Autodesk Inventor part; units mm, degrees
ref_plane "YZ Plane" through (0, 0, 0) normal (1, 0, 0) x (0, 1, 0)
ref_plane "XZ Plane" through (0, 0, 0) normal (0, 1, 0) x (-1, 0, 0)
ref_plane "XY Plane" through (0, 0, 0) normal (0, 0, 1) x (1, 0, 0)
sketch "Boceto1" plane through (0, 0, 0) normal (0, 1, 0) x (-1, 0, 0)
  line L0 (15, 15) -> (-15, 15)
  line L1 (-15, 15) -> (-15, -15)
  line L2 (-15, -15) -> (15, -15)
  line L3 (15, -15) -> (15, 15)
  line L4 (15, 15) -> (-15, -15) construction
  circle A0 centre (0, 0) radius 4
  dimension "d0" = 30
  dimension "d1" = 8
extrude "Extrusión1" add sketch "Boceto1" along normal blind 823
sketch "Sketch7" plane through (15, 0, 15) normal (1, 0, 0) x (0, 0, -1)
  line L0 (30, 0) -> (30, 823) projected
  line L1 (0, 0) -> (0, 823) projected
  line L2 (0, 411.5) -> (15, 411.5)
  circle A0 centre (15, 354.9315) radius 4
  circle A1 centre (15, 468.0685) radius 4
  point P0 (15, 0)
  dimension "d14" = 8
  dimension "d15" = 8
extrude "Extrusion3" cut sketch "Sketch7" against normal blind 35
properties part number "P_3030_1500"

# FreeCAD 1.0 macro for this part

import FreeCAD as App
import Part
import Sketcher
Q = App.Units.Quantity


def add_polygon(sketch, points):
    """Adds a closed chain of lines whose ends are joined by coincident constraints."""
    first, n = sketch.GeometryCount, len(points)
    for a, b in zip(points, points[1:] + points[:1]):
        sketch.addGeometry(Part.LineSegment(App.Vector(*a, 0), App.Vector(*b, 0)), False)
    for i in range(n):
        sketch.addConstraint(Sketcher.Constraint("Coincident", first + i, 2, first + (i + 1) % n, 1))

doc = App.newDocument("Part")
body = doc.addObject("PartDesign::Body", "Body")

sketch1 = body.newObject("Sketcher::SketchObject", "Sketch")
sketch1.AttachmentSupport = (doc.getObject("XZ_Plane"), [""])
sketch1.MapMode = "FlatFace"
add_polygon(sketch1, [(-15, -15), (-15, 15), (15, 15), (15, -15)])
sketch1.addGeometry(Part.Circle(App.Vector(0, 0, 0), App.Vector(0, 0, 1), 4), False)
sketch1.addConstraint(Sketcher.Constraint("Vertical", 0))
sketch1.addConstraint(Sketcher.Constraint("Horizontal", 1))
sketch1.addConstraint(Sketcher.Constraint("Vertical", 2))
sketch1.addConstraint(Sketcher.Constraint("Horizontal", 3))
sketch1.addConstraint(Sketcher.Constraint("Coincident", 4, 3, -1, 1))
sketch1.addConstraint(Sketcher.Constraint("Symmetric", 0, 2, 2, 2, -1, 1))
sketch1.addConstraint(Sketcher.Constraint("Equal", 3, 0))
sketch1.addConstraint(Sketcher.Constraint("Diameter", 4, Q("8 mm")))
sketch1.addConstraint(Sketcher.Constraint("DistanceX", 1, 1, 1, 2, Q("30 mm")))
pad1 = body.newObject("PartDesign::Pad", "Pad")
pad1.Profile = sketch1
pad1.Length = 823
pad1.Reversed = True

sketch2 = body.newObject("Sketcher::SketchObject", "Sketch001")
sketch2.AttachmentSupport = (doc.getObject("YZ_Plane"), [""])
sketch2.MapMode = "FlatFace"
sketch2.AttachmentOffset = App.Placement(App.Vector(0, 0, 15), App.Rotation())
sketch2.addGeometry(Part.Circle(App.Vector(354.9, 0, 0), App.Vector(0, 0, 1), 4), False)
sketch2.addGeometry(Part.Circle(App.Vector(468.1, 0, 0), App.Vector(0, 0, 1), 4), False)
sketch2.addConstraint(Sketcher.Constraint("Equal", 0, 1))
sketch2.addConstraint(Sketcher.Constraint("PointOnObject", 0, 3, -1))
sketch2.addConstraint(Sketcher.Constraint("PointOnObject", 1, 3, -1))
sketch2.addConstraint(Sketcher.Constraint("Diameter", 0, Q("8 mm")))
sketch2.addConstraint(Sketcher.Constraint("DistanceX", 0, 3, 1, 3, Q("113.137 mm")))
sketch2.addConstraint(Sketcher.Constraint("DistanceX", -1, 1, 0, 3, Q("354.9315 mm")))
pocket1 = body.newObject("PartDesign::Pocket", "Pocket")
pocket1.Profile = sketch2
pocket1.Length = 35

doc.recompute()
